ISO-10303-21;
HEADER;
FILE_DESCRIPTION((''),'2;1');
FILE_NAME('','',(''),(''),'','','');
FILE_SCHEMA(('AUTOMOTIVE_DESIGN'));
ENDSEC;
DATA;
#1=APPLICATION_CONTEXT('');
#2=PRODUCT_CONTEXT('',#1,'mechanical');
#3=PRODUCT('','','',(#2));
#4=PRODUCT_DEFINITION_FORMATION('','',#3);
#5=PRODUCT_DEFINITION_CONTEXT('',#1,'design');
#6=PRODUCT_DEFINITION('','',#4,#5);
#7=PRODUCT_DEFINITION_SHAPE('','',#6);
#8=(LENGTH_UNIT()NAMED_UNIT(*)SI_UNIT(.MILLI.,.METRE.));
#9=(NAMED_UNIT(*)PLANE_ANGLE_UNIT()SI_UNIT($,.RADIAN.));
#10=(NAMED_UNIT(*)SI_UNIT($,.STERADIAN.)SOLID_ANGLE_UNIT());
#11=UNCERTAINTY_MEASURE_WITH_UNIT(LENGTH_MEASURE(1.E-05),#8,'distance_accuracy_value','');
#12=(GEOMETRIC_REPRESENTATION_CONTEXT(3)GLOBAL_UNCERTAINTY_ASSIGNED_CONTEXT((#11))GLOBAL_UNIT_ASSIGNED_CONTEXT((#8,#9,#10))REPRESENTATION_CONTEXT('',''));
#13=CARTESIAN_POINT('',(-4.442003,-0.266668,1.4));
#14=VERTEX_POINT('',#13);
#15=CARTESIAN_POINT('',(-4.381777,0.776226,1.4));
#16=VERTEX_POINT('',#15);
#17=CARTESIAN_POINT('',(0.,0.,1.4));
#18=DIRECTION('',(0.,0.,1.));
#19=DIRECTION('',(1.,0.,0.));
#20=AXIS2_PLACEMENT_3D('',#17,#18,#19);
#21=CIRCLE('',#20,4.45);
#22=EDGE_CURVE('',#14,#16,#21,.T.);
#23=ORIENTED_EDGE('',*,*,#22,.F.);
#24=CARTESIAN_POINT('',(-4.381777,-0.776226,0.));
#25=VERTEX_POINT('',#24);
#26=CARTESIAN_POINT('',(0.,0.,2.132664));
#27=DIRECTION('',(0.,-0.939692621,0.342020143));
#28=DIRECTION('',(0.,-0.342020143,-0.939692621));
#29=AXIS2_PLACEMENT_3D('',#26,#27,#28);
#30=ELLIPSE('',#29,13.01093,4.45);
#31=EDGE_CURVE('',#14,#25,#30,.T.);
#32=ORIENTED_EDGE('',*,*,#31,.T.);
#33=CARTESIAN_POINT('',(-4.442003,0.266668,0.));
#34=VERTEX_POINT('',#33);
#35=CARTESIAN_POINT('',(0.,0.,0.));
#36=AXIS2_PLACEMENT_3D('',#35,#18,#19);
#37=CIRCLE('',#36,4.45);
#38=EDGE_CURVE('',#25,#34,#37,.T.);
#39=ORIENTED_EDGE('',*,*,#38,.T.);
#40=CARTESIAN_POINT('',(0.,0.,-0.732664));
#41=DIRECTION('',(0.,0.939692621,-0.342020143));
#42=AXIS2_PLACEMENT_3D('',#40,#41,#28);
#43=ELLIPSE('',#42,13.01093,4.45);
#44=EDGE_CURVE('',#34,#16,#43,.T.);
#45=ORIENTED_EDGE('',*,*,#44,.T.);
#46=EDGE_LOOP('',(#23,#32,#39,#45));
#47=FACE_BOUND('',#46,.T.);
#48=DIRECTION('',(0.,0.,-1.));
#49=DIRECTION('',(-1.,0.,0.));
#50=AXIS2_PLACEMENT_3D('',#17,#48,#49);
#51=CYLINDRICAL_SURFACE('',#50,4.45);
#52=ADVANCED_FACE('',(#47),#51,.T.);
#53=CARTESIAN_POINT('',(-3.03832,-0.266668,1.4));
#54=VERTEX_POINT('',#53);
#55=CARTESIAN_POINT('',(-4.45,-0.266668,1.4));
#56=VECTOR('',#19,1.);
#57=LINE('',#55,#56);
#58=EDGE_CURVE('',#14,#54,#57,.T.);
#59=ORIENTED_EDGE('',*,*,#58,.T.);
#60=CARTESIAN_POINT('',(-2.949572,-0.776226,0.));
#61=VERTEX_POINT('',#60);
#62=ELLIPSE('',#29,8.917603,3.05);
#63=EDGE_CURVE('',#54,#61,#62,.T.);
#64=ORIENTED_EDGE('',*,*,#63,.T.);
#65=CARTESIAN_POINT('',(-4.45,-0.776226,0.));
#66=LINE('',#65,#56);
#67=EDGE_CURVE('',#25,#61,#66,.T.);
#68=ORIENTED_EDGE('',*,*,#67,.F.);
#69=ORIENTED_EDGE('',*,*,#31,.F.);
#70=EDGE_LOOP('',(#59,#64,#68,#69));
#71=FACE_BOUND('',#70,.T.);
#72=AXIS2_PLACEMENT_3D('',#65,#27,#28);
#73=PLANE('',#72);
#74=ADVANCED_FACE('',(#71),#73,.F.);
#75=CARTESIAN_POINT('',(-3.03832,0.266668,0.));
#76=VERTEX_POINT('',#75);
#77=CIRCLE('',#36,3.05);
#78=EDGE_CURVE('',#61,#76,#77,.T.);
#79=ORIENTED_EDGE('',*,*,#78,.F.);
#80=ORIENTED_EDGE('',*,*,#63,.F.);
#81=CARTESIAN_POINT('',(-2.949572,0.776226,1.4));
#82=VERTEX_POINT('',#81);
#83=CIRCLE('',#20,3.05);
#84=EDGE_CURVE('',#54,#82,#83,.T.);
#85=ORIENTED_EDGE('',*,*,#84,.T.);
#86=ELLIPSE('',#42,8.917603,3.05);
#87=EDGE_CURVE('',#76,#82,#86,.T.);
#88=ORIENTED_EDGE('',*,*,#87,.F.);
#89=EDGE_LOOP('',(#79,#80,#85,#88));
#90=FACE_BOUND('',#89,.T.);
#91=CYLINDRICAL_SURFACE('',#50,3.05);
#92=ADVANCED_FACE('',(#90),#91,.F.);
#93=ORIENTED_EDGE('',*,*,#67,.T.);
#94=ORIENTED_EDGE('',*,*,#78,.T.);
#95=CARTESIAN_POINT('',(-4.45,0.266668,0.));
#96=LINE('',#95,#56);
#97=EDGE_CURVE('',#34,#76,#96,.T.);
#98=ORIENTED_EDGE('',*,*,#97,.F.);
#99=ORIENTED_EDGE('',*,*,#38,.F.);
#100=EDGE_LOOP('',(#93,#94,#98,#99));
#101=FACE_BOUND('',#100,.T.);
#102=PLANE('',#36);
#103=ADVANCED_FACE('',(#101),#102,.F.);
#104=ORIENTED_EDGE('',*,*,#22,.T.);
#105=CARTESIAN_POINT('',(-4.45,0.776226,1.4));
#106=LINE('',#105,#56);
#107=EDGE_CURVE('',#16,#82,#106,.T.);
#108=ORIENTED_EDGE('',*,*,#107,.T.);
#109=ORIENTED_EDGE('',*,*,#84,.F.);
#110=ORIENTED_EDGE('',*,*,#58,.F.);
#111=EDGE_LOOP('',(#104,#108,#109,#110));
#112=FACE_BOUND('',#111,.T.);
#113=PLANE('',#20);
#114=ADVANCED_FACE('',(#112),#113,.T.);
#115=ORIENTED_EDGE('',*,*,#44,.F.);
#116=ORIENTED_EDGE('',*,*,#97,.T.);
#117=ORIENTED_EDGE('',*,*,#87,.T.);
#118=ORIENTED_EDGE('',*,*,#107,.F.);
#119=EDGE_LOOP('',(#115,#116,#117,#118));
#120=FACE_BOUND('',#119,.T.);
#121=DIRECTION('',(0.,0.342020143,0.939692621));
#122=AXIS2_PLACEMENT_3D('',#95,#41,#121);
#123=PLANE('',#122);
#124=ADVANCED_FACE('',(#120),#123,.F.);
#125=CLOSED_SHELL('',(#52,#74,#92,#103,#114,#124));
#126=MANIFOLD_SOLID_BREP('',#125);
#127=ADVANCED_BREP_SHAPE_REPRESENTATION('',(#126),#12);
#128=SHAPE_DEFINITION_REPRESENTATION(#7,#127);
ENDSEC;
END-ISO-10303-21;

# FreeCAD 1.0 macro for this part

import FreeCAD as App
import Part
import Sketcher
from FreeCAD import Vector
Q = App.Units.Quantity

doc = App.newDocument("Part")
body = doc.addObject("PartDesign::Body", "Body")

# Sketch on XY plane
sketch1 = doc.addObject("Sketcher::SketchObject", "Sketch")
body.addObject(sketch1)
sketch1.AttachmentSupport = (doc.XY_Plane, [""])
sketch1.MapMode = "FlatFace"
sketch1.addGeometry(Part.Circle(Vector(0, 0, 0), Vector(0, 0, 1), 4.5), False)
sketch1.addGeometry(Part.Circle(Vector(0, 0, 0), Vector(0, 0, 1), 3), False)
sketch1.addConstraint(Sketcher.Constraint("Coincident", 0, 3, -1, 1))
sketch1.addConstraint(Sketcher.Constraint("Coincident", 1, 3, -1, 1))
sketch1.addConstraint(Sketcher.Constraint("Diameter", 0, Q("8.9 mm")))
sketch1.addConstraint(Sketcher.Constraint("Diameter", 1, Q("6.1 mm")))
pad1 = doc.addObject("PartDesign::Pad", "Pad")
body.addObject(pad1)
pad1.Profile = sketch1
pad1.Length = 1.4

# Sketch on YZ plane
sketch2 = doc.addObject("Sketcher::SketchObject", "Sketch001")
body.addObject(sketch2)
sketch2.AttachmentSupport = (doc.YZ_Plane, [""])
sketch2.MapMode = "FlatFace"
sketch2.addGeometry(Part.LineSegment(Vector(0.3, 0, 0), Vector(0.8, 1.4, 0)), False)
sketch2.addGeometry(Part.LineSegment(Vector(0.8, 1.4, 0), Vector(-0.3, 1.4, 0)), False)
sketch2.addGeometry(Part.LineSegment(Vector(-0.3, 1.4, 0), Vector(-0.8, 0, 0)), False)
sketch2.addGeometry(Part.LineSegment(Vector(-0.8, 0, 0), Vector(0.3, 0, 0)), False)
sketch2.addConstraint(Sketcher.Constraint("Coincident", 0, 2, 1, 1))
sketch2.addConstraint(Sketcher.Constraint("Coincident", 1, 2, 2, 1))
sketch2.addConstraint(Sketcher.Constraint("Coincident", 2, 2, 3, 1))
sketch2.addConstraint(Sketcher.Constraint("Coincident", 3, 2, 0, 1))
sketch2.addConstraint(Sketcher.Constraint("Horizontal", 1))
sketch2.addConstraint(Sketcher.Constraint("Horizontal", 3))
sketch2.addConstraint(Sketcher.Constraint("PointOnObject", 2, 2, -1))
sketch2.addConstraint(Sketcher.Constraint("Parallel", 0, 2))
sketch2.addConstraint(Sketcher.Constraint("Angle", 0, Q("70 deg")))
sketch2.addConstraint(Sketcher.Constraint("DistanceY", -1, 1, 0, 2, Q("1.4 mm")))
sketch2.addConstraint(Sketcher.Constraint("DistanceX", 1, 2, 1, 1, Q("1.042894 mm")))
sketch2.addConstraint(Sketcher.Constraint("DistanceX", -1, 1, 0, 2, Q("0.776226 mm")))
pocket1 = doc.addObject("PartDesign::Pocket", "Pocket")
body.addObject(pocket1)
pocket1.Profile = sketch2
pocket1.Type = "ThroughAll"

doc.recompute()
